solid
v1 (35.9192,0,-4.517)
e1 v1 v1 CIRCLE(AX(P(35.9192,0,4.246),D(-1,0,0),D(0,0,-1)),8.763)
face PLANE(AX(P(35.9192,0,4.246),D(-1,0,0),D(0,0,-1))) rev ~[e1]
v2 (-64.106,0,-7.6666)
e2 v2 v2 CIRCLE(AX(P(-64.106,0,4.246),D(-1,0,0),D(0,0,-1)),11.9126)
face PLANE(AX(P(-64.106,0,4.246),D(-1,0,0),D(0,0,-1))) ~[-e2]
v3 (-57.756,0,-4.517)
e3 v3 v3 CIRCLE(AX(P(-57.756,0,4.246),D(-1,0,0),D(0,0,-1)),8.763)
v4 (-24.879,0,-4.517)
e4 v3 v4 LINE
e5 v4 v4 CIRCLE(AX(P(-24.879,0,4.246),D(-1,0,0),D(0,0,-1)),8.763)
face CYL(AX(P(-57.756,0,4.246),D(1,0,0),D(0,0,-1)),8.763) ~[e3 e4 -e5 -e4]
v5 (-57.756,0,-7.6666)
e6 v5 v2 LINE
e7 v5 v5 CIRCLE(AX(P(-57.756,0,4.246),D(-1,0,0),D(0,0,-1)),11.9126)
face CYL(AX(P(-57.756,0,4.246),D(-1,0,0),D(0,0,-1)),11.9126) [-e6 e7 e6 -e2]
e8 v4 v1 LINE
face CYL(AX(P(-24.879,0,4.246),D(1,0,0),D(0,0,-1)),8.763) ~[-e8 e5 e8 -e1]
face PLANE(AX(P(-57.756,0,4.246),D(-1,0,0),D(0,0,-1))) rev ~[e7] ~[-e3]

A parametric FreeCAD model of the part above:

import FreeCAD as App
import Part
import Sketcher
from FreeCAD import Vector
Q = App.Units.Quantity


def add_polygon(sketch, points):
    """Adds a closed chain of lines whose ends are joined by coincident constraints."""
    first, n = sketch.GeometryCount, len(points)
    for a, b in zip(points, points[1:] + points[:1]):
        sketch.addGeometry(Part.LineSegment(App.Vector(*a, 0), App.Vector(*b, 0)), False)
    for i in range(n):
        sketch.addConstraint(Sketcher.Constraint("Coincident", first + i, 2, first + (i + 1) % n, 1))

doc = App.newDocument("Part")
body = doc.addObject("PartDesign::Body", "Body")

# Sketch on XZ plane
sketch1 = doc.addObject("Sketcher::SketchObject", "Sketch")
body.addObject(sketch1)
sketch1.AttachmentSupport = (doc.XZ_Plane, [""])
sketch1.MapMode = "FlatFace"
add_polygon(sketch1, [(-64.1, -7.7), (-64.1, 4.2), (35.9, 4.2), (35.9, -4.5), (-57.8, -4.5), (-57.8, -7.7)])  # lines 0-5
sketch1.addGeometry(Part.LineSegment(Vector(35.9, 4.2, 0), Vector(-64.1, 4.2, 0)), True)  # axis
sketch1.addConstraint([
    Sketcher.Constraint("Vertical", 0),
    Sketcher.Constraint("Horizontal", 1),
    Sketcher.Constraint("Vertical", 2),
    Sketcher.Constraint("Horizontal", 3),
    Sketcher.Constraint("Vertical", 4),
    Sketcher.Constraint("Horizontal", 5),
    Sketcher.Constraint("Horizontal", 6),
    Sketcher.Constraint("Coincident", 6, 1, 1, 2),
    Sketcher.Constraint("Vertical", 5, 2, 6, 2),
    Sketcher.Constraint("DistanceX", 5, 2, 5, 1, Q("0.25 in")),
    Sketcher.Constraint("DistanceX", 1, 1, 1, 2, Q("3.938 in")),
    Sketcher.Constraint("DistanceY", 0, 1, 0, 2, Q("0.469 in")),
    Sketcher.Constraint("DistanceY", 4, 2, 4, 1, Q("0.124 in")),
    Sketcher.Constraint("DistanceX", 0, 2, -1, 1, 64.106),
    Sketcher.Constraint("DistanceY", -1, 1, 0, 2, 4.246),
])
revolution = doc.addObject("PartDesign::Revolution", "Revolution")
body.addObject(revolution)
revolution.Profile = sketch1
revolution.ReferenceAxis = (sketch1, ["Axis0"])
revolution.Angle = 360

doc.recompute()
